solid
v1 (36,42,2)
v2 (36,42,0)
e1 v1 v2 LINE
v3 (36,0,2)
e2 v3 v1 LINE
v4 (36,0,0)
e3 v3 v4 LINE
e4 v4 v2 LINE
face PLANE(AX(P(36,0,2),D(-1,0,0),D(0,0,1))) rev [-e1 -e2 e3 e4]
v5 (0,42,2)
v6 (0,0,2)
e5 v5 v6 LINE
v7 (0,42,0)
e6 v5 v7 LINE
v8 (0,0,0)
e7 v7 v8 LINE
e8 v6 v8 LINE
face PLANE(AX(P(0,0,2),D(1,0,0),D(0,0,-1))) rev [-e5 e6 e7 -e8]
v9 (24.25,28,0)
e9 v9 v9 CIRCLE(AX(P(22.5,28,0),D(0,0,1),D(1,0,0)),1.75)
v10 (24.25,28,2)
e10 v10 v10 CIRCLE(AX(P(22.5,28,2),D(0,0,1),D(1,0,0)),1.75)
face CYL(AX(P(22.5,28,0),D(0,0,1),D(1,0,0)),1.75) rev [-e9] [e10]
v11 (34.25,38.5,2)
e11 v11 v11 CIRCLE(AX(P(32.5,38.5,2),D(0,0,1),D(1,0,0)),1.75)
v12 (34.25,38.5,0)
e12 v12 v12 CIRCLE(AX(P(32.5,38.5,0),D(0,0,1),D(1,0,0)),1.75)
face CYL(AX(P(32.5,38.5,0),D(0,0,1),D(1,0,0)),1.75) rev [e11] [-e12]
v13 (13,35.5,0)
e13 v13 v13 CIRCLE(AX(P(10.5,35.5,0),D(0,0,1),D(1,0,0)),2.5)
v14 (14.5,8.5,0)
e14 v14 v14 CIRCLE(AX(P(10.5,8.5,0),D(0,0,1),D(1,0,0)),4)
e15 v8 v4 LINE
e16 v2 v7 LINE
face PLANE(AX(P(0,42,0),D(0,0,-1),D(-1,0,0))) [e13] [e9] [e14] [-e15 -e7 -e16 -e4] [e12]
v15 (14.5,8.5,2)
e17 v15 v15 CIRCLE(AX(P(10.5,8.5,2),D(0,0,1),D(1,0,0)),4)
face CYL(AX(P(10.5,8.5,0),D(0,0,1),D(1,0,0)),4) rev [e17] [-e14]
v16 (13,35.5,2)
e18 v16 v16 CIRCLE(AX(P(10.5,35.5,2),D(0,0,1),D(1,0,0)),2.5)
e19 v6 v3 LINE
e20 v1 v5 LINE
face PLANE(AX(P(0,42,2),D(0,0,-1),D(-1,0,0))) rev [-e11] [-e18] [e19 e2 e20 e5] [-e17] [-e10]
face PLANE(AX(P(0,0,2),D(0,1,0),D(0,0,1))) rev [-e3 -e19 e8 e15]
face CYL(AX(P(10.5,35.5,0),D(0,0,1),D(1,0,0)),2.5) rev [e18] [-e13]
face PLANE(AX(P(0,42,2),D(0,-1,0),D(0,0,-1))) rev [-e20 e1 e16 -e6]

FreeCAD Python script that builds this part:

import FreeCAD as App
import Part
import Sketcher

V = App.Vector
Q = App.Units.Quantity

doc = App.newDocument("Part")
body = doc.addObject("PartDesign::Body", "Body")

# Sketch on XY plane
sketch1 = body.newObject("Sketcher::SketchObject", "Sketch")
sketch1.AttachmentSupport = (doc.getObject("XY_Plane"), [""])
sketch1.MapMode = "FlatFace"
sketch1.addGeometry(Part.LineSegment(V(0, 42, 0), V(0, 0, 0)), False)
sketch1.addGeometry(Part.LineSegment(V(0, 0, 0), V(36, 0, 0)), False)
sketch1.addGeometry(Part.LineSegment(V(36, 0, 0), V(36, 42, 0)), False)
sketch1.addGeometry(Part.LineSegment(V(36, 42, 0), V(0, 42, 0)), False)
sketch1.addConstraint(Sketcher.Constraint("Coincident", 0, 2, 1, 1))
sketch1.addConstraint(Sketcher.Constraint("Coincident", 1, 2, 2, 1))
sketch1.addConstraint(Sketcher.Constraint("Coincident", 2, 2, 3, 1))
sketch1.addConstraint(Sketcher.Constraint("Coincident", 3, 2, 0, 1))
sketch1.addConstraint(Sketcher.Constraint("Vertical", 0))
sketch1.addConstraint(Sketcher.Constraint("Horizontal", 1))
sketch1.addConstraint(Sketcher.Constraint("Vertical", 2))
sketch1.addConstraint(Sketcher.Constraint("Horizontal", 3))
sketch1.addConstraint(Sketcher.Constraint("Coincident", 0, 2, -1, 1))
sketch1.addConstraint(Sketcher.Constraint("DistanceX", 1, 1, 1, 2, Q("36 mm")))
sketch1.addConstraint(Sketcher.Constraint("DistanceY", 0, 2, 0, 1, Q("42 mm")))
pad1 = body.newObject("PartDesign::Pad", "Pad")
pad1.Profile = sketch1
pad1.Length = 2

# Sketch on XY plane
sketch2 = body.newObject("Sketcher::SketchObject", "Sketch001")
sketch2.AttachmentSupport = (doc.getObject("XY_Plane"), [""])
sketch2.MapMode = "FlatFace"
sketch2.AttachmentOffset = App.Placement(V(0, 0, 2), App.Rotation())
sketch2.addGeometry(Part.Circle(V(32.5, 38.5, 0), V(0, 0, 1), 1.75), False)
sketch2.addGeometry(Part.Circle(V(22.5, 28, 0), V(0, 0, 1), 1.75), False)
sketch2.addGeometry(Part.Circle(V(10.5, 35.5, 0), V(0, 0, 1), 2.5), False)
sketch2.addConstraint(Sketcher.Constraint("Equal", 0, 1))
sketch2.addConstraint(Sketcher.Constraint("Diameter", 2, Q("5 mm")))
sketch2.addConstraint(Sketcher.Constraint("Diameter", 0, Q("3.5 mm")))
sketch2.addConstraint(Sketcher.Constraint("DistanceY", -1, 1, 1, 3, Q("28 mm")))
sketch2.addConstraint(Sketcher.Constraint("DistanceX", 1, 3, 0, 3, Q("10 mm")))
sketch2.addConstraint(Sketcher.Constraint("DistanceX", 2, 3, 1, 3, Q("12 mm")))
sketch2.addConstraint(Sketcher.Constraint("DistanceY", 2, 3, 0, 3, Q("3 mm")))
sketch2.addConstraint(Sketcher.Constraint("DistanceX", -1, 1, 0, 3, Q("32.5 mm")))
sketch2.addConstraint(Sketcher.Constraint("DistanceY", -1, 1, 0, 3, Q("38.5 mm")))
pocket1 = body.newObject("PartDesign::Pocket", "Pocket")
pocket1.Profile = sketch2
pocket1.Type = "ThroughAll"

# Sketch on XY plane
sketch3 = body.newObject("Sketcher::SketchObject", "Sketch002")
sketch3.AttachmentSupport = (doc.getObject("XY_Plane"), [""])
sketch3.MapMode = "FlatFace"
sketch3.AttachmentOffset = App.Placement(V(0, 0, 2), App.Rotation())
sketch3.addGeometry(Part.Circle(V(10.5, 8.5, 0), V(0, 0, 1), 4), False)
sketch3.addConstraint(Sketcher.Constraint("Diameter", 0, Q("8 mm")))
sketch3.addConstraint(Sketcher.Constraint("DistanceX", -1, 1, 0, 3, Q("10.5 mm")))
sketch3.addConstraint(Sketcher.Constraint("DistanceY", -1, 1, 0, 3, Q("8.5 mm")))
pocket2 = body.newObject("PartDesign::Pocket", "Pocket001")
pocket2.Profile = sketch3
pocket2.Type = "ThroughAll"

doc.recompute()
